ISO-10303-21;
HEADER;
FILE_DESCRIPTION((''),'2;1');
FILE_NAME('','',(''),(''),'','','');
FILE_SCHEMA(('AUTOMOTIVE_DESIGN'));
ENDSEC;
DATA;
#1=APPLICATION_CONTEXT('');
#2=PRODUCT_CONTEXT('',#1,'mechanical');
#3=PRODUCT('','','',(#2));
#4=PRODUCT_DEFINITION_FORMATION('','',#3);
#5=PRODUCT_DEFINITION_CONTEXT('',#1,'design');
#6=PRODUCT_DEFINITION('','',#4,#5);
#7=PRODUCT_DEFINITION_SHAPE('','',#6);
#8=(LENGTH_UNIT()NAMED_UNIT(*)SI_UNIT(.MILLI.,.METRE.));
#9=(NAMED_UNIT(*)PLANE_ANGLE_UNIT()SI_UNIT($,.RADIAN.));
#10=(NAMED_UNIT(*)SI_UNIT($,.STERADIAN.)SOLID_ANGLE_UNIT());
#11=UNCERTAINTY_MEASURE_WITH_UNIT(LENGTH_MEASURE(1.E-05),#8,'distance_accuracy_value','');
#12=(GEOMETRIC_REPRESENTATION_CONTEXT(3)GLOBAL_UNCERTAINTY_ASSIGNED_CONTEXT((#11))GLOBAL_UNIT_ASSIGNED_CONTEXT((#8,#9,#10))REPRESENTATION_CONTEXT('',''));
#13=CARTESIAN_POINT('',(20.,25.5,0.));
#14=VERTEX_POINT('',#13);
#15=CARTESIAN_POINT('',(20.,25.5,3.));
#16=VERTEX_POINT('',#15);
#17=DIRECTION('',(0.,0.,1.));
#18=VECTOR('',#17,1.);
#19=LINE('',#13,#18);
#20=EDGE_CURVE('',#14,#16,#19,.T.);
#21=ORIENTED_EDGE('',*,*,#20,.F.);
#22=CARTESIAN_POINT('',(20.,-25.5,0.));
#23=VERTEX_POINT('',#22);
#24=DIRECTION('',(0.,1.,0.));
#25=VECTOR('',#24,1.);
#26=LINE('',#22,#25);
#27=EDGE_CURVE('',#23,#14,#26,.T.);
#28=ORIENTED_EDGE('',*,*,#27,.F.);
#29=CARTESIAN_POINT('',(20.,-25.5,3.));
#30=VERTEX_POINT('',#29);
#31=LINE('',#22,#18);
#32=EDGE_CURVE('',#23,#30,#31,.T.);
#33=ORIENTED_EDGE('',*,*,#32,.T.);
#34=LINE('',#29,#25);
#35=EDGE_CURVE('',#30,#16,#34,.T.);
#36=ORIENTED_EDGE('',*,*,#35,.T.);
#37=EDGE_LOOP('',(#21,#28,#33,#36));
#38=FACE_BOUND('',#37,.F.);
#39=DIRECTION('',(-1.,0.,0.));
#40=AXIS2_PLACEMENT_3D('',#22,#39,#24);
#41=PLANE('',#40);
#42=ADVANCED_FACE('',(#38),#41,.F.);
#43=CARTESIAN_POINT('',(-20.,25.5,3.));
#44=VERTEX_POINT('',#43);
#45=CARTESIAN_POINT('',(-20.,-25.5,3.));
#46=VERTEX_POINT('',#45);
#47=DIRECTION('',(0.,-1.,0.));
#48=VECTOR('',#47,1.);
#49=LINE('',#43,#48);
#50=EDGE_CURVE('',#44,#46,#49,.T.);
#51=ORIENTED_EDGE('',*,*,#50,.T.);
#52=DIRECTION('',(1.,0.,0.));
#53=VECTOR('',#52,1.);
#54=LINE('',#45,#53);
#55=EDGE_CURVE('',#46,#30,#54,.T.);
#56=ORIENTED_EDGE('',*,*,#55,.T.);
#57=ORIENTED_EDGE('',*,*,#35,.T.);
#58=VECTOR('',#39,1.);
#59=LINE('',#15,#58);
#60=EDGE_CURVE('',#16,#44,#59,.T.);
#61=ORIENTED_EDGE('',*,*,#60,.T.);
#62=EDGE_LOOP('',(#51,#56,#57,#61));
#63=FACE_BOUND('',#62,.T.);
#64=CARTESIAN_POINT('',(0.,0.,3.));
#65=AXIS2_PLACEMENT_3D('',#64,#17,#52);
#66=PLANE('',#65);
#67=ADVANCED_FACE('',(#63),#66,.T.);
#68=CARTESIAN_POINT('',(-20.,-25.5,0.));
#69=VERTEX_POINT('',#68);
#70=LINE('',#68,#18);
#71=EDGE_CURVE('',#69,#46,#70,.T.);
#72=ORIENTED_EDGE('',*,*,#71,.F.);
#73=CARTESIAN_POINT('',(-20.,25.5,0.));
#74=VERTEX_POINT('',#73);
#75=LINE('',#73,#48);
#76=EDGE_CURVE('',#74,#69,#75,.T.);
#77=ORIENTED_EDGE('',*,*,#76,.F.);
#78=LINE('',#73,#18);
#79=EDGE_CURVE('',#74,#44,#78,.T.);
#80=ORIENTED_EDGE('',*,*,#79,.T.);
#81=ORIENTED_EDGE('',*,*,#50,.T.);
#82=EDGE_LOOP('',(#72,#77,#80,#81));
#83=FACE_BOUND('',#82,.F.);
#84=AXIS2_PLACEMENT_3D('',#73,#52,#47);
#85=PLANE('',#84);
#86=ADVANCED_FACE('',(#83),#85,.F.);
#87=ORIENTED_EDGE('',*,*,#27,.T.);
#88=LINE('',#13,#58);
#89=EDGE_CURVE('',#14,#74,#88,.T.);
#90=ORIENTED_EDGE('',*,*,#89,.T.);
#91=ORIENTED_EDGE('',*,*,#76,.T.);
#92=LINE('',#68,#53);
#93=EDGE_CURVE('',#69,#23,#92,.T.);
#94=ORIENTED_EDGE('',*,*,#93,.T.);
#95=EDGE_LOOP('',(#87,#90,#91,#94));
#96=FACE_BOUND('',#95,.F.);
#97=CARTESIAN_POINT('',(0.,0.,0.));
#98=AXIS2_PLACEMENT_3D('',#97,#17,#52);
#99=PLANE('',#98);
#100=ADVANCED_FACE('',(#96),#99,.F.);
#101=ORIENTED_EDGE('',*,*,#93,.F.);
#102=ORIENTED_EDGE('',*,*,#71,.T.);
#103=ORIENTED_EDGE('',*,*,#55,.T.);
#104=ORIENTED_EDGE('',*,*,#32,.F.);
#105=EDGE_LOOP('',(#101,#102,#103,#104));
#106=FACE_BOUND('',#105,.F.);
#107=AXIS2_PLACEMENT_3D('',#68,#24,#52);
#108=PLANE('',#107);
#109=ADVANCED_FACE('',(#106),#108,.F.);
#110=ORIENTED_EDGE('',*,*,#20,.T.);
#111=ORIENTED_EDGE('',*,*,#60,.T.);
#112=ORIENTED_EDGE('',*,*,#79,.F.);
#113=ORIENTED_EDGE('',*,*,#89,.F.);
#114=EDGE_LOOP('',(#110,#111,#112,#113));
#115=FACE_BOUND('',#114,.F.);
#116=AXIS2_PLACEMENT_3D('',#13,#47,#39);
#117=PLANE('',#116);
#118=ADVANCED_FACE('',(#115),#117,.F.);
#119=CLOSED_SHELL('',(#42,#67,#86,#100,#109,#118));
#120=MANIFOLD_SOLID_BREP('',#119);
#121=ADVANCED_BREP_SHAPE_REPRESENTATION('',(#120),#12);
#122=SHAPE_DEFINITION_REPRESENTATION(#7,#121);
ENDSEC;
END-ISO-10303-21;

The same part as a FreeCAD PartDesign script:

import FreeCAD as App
import Part
import Sketcher

doc = App.newDocument("Part")
params = doc.addObject("Spreadsheet::Sheet", "Params")
for row, (alias, value) in enumerate([
    ("sketch1_width", "40 mm"),
    ("sketch1_height", "51 mm"),
    ("pad1_length", "3 mm"),
], start=1):
    params.set(f"A{row}", alias)
    params.set(f"B{row}", "=" + value)
    params.setAlias(f"B{row}", alias)

body = doc.addObject("PartDesign::Body", "Body")

sketch1 = body.newObject("Sketcher::SketchObject", "Sketch")
sketch1.AttachmentSupport = (doc.getObject("XY_Plane"), [""])
sketch1.MapMode = "FlatFace"
sketch1.addGeometry(Part.LineSegment(App.Vector(-20, 26, 0), App.Vector(-20, -26, 0)), False)
sketch1.addGeometry(Part.LineSegment(App.Vector(-20, -26, 0), App.Vector(20, -26, 0)), False)
sketch1.addGeometry(Part.LineSegment(App.Vector(20, -26, 0), App.Vector(20, 26, 0)), False)
sketch1.addGeometry(Part.LineSegment(App.Vector(20, 26, 0), App.Vector(-20, 26, 0)), False)
sketch1.addConstraint(Sketcher.Constraint("Coincident", 0, 2, 1, 1))
sketch1.addConstraint(Sketcher.Constraint("Coincident", 1, 2, 2, 1))
sketch1.addConstraint(Sketcher.Constraint("Coincident", 2, 2, 3, 1))
sketch1.addConstraint(Sketcher.Constraint("Coincident", 3, 2, 0, 1))
sketch1.addConstraint(Sketcher.Constraint("Vertical", 0))
sketch1.addConstraint(Sketcher.Constraint("Horizontal", 1))
sketch1.addConstraint(Sketcher.Constraint("Vertical", 2))
sketch1.addConstraint(Sketcher.Constraint("Horizontal", 3))
sketch1.addConstraint(Sketcher.Constraint("Symmetric", 0, 2, 2, 2, -1, 1))
sketch1.addConstraint(Sketcher.Constraint("DistanceX", 1, 1, 1, 2, 40.0))
sketch1.addConstraint(Sketcher.Constraint("DistanceY", 0, 2, 0, 1, 51.0))
sketch1.setExpression("Constraints[9]", "Params.sketch1_width")
sketch1.setExpression("Constraints[10]", "Params.sketch1_height")
pad1 = body.newObject("PartDesign::Pad", "Pad")
pad1.Profile = sketch1
pad1.setExpression("Length", "Params.pad1_length")

doc.recompute()
